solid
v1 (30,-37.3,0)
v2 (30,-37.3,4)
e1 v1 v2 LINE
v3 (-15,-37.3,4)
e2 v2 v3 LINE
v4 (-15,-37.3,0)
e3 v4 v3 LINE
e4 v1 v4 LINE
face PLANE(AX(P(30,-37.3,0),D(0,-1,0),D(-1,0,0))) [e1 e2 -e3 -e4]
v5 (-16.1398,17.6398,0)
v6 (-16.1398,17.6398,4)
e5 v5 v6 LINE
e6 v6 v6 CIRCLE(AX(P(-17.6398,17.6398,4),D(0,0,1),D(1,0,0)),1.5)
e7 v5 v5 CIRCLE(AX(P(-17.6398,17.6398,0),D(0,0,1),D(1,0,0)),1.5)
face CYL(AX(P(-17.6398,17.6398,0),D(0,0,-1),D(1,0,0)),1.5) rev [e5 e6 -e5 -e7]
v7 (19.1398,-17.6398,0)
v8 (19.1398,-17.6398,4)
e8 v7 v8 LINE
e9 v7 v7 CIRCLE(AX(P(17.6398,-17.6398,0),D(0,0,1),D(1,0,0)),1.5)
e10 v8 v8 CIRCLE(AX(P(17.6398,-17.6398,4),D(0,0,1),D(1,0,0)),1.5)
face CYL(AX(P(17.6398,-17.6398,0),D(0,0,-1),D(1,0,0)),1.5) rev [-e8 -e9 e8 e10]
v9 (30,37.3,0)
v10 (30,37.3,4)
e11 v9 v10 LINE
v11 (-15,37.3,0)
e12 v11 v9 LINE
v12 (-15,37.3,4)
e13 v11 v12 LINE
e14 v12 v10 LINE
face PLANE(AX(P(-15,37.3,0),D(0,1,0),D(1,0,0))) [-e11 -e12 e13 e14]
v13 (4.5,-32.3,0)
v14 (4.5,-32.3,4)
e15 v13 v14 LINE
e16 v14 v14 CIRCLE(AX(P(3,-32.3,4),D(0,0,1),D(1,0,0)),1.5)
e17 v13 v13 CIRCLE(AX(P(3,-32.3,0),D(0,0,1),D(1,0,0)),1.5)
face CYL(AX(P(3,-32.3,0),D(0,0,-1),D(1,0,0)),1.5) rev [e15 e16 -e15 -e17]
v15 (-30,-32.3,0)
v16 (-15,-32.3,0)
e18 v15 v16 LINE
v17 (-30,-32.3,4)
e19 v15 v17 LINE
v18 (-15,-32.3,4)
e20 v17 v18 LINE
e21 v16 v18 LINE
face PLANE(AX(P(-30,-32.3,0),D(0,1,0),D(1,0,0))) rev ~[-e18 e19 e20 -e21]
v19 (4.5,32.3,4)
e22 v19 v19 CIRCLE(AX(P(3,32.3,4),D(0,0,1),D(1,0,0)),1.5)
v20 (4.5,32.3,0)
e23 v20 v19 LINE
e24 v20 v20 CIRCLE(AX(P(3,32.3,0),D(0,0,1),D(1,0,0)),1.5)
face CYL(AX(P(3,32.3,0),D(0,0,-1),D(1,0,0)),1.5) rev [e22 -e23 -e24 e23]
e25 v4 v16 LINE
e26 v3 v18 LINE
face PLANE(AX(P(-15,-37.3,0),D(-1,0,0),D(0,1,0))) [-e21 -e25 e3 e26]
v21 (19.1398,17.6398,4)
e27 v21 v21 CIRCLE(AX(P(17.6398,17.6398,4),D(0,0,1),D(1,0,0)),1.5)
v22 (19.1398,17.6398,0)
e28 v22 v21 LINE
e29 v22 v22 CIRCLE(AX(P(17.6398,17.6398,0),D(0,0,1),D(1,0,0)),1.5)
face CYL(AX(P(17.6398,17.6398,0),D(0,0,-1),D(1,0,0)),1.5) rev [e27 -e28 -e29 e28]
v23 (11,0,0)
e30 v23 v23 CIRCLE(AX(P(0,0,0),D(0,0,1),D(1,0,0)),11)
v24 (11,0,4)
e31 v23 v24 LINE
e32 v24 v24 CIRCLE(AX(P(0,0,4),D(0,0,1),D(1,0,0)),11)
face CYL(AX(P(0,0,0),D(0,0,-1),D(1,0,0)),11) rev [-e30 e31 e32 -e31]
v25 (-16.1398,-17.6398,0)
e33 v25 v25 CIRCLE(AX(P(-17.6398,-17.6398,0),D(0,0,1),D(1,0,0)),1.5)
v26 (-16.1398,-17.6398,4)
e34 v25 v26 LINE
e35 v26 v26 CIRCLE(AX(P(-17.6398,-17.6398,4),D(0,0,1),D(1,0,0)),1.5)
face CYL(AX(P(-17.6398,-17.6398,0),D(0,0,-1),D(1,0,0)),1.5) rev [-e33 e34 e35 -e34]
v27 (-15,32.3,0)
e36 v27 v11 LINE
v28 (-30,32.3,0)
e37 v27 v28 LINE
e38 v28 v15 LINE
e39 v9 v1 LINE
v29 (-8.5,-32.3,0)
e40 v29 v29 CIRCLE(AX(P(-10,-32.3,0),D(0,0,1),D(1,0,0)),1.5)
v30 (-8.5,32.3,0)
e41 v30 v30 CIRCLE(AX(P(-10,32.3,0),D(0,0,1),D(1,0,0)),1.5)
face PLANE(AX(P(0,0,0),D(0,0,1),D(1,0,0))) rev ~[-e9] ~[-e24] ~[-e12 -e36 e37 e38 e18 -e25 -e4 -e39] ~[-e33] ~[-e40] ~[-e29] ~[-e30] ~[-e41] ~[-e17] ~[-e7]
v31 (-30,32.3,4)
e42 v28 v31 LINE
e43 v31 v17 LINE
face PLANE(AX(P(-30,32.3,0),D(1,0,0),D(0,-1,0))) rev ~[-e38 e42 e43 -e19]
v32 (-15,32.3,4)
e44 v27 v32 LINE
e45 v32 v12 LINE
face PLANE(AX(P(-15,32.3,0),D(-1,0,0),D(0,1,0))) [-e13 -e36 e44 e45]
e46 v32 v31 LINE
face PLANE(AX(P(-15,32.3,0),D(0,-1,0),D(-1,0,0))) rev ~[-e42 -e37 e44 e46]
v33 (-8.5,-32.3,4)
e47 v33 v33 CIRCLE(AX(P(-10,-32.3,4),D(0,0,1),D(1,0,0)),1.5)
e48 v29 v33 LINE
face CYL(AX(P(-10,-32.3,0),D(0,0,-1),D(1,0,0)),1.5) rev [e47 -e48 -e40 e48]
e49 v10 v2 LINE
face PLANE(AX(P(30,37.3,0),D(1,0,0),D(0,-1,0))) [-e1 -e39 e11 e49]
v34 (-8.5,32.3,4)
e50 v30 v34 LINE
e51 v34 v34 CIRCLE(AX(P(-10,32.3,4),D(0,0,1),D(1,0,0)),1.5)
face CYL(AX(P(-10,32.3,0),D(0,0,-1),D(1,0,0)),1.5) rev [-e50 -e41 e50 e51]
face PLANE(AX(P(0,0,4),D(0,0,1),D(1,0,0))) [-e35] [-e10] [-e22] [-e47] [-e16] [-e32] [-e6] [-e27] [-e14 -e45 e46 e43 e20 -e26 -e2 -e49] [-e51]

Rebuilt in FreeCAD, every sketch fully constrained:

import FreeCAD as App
import Part
import Sketcher
from FreeCAD import Vector

doc = App.newDocument("Part")
body = doc.addObject("PartDesign::Body", "Body")

# Sketch on XY plane
sketch1 = body.newObject("Sketcher::SketchObject", "Sketch")
sketch1.AttachmentSupport = (doc.getObject("XY_Plane"), [""])
sketch1.MapMode = "FlatFace"
sketch1.addGeometry(Part.LineSegment(Vector(30, 37.3, 0), Vector(-15, 37.3, 0)), False)
sketch1.addGeometry(Part.LineSegment(Vector(-15, 37.3, 0), Vector(-15, 32.3, 0)), False)
sketch1.addGeometry(Part.LineSegment(Vector(-15, 32.3, 0), Vector(-30, 32.3, 0)), False)
sketch1.addGeometry(Part.LineSegment(Vector(-30, 32.3, 0), Vector(-30, -32.3, 0)), False)
sketch1.addGeometry(Part.LineSegment(Vector(-30, -32.3, 0), Vector(-15, -32.3, 0)), False)
sketch1.addGeometry(Part.LineSegment(Vector(-15, -32.3, 0), Vector(-15, -37.3, 0)), False)
sketch1.addGeometry(Part.LineSegment(Vector(-15, -37.3, 0), Vector(30, -37.3, 0)), False)
sketch1.addGeometry(Part.LineSegment(Vector(30, -37.3, 0), Vector(30, 37.3, 0)), False)
sketch1.addGeometry(Part.Circle(Vector(-10, -32.3, 0), Vector(0, 0, 1), 1.5), False)
sketch1.addGeometry(Part.Circle(Vector(3, -32.3, 0), Vector(0, 0, 1), 1.5), False)
sketch1.addGeometry(Part.Circle(Vector(0, 0, 0), Vector(0, 0, 1), 11), False)
sketch1.addGeometry(Part.Circle(Vector(17.6, -17.6, 0), Vector(0, 0, 1), 1.5), False)
sketch1.addGeometry(Part.Circle(Vector(-10, 32.3, 0), Vector(0, 0, 1), 1.5), False)
sketch1.addGeometry(Part.Circle(Vector(17.6, 17.6, 0), Vector(0, 0, 1), 1.5), False)
sketch1.addGeometry(Part.Circle(Vector(3, 32.3, 0), Vector(0, 0, 1), 1.5), False)
sketch1.addGeometry(Part.Circle(Vector(-17.6, 17.6, 0), Vector(0, 0, 1), 1.5), False)
sketch1.addGeometry(Part.Circle(Vector(-17.6, -17.6, 0), Vector(0, 0, 1), 1.5), False)
sketch1.addConstraint(Sketcher.Constraint("Coincident", 0, 2, 1, 1))
sketch1.addConstraint(Sketcher.Constraint("Coincident", 1, 2, 2, 1))
sketch1.addConstraint(Sketcher.Constraint("Coincident", 2, 2, 3, 1))
sketch1.addConstraint(Sketcher.Constraint("Coincident", 3, 2, 4, 1))
sketch1.addConstraint(Sketcher.Constraint("Coincident", 4, 2, 5, 1))
sketch1.addConstraint(Sketcher.Constraint("Coincident", 5, 2, 6, 1))
sketch1.addConstraint(Sketcher.Constraint("Coincident", 6, 2, 7, 1))
sketch1.addConstraint(Sketcher.Constraint("Coincident", 7, 2, 0, 1))
sketch1.addConstraint(Sketcher.Constraint("Horizontal", 0))
sketch1.addConstraint(Sketcher.Constraint("Vertical", 1))
sketch1.addConstraint(Sketcher.Constraint("Horizontal", 2))
sketch1.addConstraint(Sketcher.Constraint("Vertical", 3))
sketch1.addConstraint(Sketcher.Constraint("Horizontal", 4))
sketch1.addConstraint(Sketcher.Constraint("Vertical", 5))
sketch1.addConstraint(Sketcher.Constraint("Horizontal", 6))
sketch1.addConstraint(Sketcher.Constraint("Vertical", 7))
sketch1.addConstraint(Sketcher.Constraint("Coincident", 10, 3, -1, 1))
sketch1.addConstraint(Sketcher.Constraint("Equal", 8, 9))
sketch1.addConstraint(Sketcher.Constraint("Equal", 9, 11))
sketch1.addConstraint(Sketcher.Constraint("Equal", 11, 12))
sketch1.addConstraint(Sketcher.Constraint("Equal", 12, 13))
sketch1.addConstraint(Sketcher.Constraint("Equal", 13, 14))
sketch1.addConstraint(Sketcher.Constraint("Equal", 14, 15))
sketch1.addConstraint(Sketcher.Constraint("Equal", 15, 16))
sketch1.addConstraint(Sketcher.Constraint("Symmetric", 11, 3, 15, 3, -1, 1))
sketch1.addConstraint(Sketcher.Constraint("Symmetric", 13, 3, 16, 3, -1, 1))
sketch1.addConstraint(Sketcher.Constraint("Symmetric", 13, 3, 15, 3, -2))
sketch1.addConstraint(Sketcher.Constraint("Symmetric", 8, 3, 12, 3, -1))
sketch1.addConstraint(Sketcher.Constraint("Symmetric", 9, 3, 14, 3, -1))
sketch1.addConstraint(Sketcher.Constraint("Symmetric", 1, 2, 4, 2, -1))
sketch1.addConstraint(Sketcher.Constraint("Horizontal", 8, 3, 9, 3))
sketch1.addConstraint(Sketcher.Constraint("Horizontal", 14, 3, 1, 2))
sketch1.addConstraint(Sketcher.Constraint("Equal", 1, 5))
sketch1.addConstraint(Sketcher.Constraint("Diameter", 8, 3.0))
sketch1.addConstraint(Sketcher.Constraint("Diameter", 10, 22.0))
sketch1.addConstraint(Sketcher.Constraint("DistanceX", 0, 2, 0, 1, 45.0))
sketch1.addConstraint(Sketcher.Constraint("DistanceX", 2, 2, 2, 1, 15.0))
sketch1.addConstraint(Sketcher.Constraint("DistanceY", 1, 2, 1, 1, 5.0))
sketch1.addConstraint(Sketcher.Constraint("DistanceY", 7, 1, 7, 2, 74.6))
sketch1.addConstraint(Sketcher.Constraint("DistanceX", -1, 1, 9, 3, 3.0))
sketch1.addConstraint(Sketcher.Constraint("DistanceX", 0, 2, -1, 1, 15.0))
sketch1.addConstraint(Sketcher.Constraint("DistanceX", 8, 3, 9, 3, 13.0))
sketch1.addConstraint(Sketcher.Constraint("DistanceX", -1, 1, 11, 3, 17.6398))
sketch1.addConstraint(Sketcher.Constraint("DistanceY", 11, 3, -1, 1, 17.6398))
pad1 = body.newObject("PartDesign::Pad", "Pad")
pad1.Profile = sketch1
pad1.Length = 4

doc.recompute()
